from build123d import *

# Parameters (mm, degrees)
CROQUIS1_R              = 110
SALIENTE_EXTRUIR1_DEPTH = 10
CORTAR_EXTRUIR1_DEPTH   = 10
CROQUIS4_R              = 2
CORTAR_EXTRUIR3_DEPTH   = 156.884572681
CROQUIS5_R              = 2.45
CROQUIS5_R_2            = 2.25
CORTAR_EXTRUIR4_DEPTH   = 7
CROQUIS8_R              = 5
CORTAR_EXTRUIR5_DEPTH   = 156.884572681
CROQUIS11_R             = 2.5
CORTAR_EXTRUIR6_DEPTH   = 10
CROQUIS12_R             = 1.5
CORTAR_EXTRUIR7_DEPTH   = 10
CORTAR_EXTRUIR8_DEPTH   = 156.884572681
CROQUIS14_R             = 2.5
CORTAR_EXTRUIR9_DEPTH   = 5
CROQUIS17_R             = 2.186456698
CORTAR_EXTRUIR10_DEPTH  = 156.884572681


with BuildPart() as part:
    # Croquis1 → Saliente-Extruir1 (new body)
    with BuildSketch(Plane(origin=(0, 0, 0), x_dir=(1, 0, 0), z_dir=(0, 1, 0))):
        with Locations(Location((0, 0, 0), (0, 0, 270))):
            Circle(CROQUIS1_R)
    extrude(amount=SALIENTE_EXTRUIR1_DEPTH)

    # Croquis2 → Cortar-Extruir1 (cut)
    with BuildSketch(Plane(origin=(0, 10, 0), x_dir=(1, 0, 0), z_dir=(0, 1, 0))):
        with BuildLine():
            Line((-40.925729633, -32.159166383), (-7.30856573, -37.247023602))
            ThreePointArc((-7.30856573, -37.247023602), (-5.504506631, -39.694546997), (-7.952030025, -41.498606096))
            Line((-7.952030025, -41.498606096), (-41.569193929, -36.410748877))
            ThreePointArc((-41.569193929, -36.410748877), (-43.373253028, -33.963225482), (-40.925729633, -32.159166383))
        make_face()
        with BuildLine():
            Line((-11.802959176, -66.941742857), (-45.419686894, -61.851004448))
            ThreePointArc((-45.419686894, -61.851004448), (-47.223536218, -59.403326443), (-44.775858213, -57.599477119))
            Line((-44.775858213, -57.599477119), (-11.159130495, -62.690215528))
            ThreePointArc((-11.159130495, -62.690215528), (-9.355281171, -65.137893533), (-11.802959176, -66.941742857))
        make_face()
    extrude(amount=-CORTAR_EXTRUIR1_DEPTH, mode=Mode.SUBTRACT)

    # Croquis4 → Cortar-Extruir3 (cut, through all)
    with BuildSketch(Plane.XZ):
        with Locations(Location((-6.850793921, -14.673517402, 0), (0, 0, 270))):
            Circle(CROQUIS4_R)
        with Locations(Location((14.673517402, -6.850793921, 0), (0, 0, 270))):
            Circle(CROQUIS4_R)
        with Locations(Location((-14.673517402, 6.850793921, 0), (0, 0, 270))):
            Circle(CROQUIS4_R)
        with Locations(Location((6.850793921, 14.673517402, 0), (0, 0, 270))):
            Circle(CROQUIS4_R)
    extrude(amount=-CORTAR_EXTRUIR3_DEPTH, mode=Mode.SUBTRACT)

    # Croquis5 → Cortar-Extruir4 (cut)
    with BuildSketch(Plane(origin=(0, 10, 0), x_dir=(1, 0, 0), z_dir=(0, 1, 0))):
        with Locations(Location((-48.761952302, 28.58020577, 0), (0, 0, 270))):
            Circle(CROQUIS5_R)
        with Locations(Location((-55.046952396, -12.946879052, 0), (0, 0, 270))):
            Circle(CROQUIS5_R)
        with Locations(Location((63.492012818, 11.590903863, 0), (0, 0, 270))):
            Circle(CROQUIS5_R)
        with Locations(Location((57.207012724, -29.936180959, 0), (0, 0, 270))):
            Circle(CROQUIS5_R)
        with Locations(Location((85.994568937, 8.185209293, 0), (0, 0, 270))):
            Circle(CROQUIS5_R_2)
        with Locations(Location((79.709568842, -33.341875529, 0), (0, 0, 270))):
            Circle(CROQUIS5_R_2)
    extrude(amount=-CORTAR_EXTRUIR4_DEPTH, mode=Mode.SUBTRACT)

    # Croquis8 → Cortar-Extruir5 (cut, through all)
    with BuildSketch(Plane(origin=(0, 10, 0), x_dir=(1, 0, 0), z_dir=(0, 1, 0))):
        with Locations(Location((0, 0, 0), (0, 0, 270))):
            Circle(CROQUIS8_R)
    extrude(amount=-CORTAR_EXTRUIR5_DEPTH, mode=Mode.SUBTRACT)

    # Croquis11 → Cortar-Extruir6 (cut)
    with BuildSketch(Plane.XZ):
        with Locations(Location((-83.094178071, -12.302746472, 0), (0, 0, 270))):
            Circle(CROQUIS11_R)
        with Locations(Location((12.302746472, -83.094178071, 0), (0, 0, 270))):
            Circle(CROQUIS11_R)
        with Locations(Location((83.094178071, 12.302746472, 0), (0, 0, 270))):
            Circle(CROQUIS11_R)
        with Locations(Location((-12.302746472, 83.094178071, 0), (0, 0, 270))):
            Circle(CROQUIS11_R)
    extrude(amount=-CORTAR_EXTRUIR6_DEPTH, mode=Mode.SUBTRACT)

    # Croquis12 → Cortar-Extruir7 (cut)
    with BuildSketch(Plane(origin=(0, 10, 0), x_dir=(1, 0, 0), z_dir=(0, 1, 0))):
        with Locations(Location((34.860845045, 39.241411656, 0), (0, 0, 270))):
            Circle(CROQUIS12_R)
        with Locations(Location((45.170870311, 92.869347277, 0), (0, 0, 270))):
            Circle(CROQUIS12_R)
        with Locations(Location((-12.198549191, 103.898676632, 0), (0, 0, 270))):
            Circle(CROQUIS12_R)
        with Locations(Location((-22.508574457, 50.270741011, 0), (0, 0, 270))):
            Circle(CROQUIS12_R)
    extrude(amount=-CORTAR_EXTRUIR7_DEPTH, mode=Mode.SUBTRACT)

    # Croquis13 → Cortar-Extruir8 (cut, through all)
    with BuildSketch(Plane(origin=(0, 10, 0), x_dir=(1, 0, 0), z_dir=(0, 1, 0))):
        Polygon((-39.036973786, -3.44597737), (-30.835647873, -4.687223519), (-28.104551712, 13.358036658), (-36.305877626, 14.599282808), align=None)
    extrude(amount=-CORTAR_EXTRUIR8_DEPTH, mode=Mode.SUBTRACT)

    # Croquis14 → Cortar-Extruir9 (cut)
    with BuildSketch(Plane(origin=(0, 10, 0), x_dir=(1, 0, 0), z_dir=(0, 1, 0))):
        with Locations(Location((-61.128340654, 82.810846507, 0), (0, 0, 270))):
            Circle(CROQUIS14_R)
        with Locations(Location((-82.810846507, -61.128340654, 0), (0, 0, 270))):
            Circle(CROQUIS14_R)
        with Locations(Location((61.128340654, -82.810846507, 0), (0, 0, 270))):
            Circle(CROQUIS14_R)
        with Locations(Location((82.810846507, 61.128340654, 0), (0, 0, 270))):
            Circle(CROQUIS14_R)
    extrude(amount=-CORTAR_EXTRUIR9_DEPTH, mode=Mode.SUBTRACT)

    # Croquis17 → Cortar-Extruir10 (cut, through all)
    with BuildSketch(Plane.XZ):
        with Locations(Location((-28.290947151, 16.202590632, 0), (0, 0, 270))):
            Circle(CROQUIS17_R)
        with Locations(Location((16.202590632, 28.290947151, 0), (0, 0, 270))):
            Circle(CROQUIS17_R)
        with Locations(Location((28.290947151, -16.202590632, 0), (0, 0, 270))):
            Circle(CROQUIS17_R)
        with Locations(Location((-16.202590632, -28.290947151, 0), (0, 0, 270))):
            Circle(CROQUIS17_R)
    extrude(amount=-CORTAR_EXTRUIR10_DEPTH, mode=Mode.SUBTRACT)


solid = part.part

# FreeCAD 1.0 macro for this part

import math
import FreeCAD as App
import Part
import Sketcher

V = App.Vector
Q = App.Units.Quantity

doc = App.newDocument("Part")
body = doc.addObject("PartDesign::Body", "Body")

sketch1 = doc.addObject("Sketcher::SketchObject", "Sketch")
body.addObject(sketch1)
sketch1.AttachmentSupport = (doc.XZ_Plane, [""])
sketch1.MapMode = "FlatFace"
sketch1.addGeometry(Part.Circle(V(0, 0, 0), V(0, 0, 1), 110), False)
sketch1.addConstraint([
    Sketcher.Constraint("Coincident", 0, 3, -1, 1),
    Sketcher.Constraint("Diameter", 0, Q("220 mm")),
])
pad1 = doc.addObject("PartDesign::Pad", "Pad")
body.addObject(pad1)
pad1.Profile = sketch1
pad1.Length = 10
pad1.Reversed = True

sketch2 = doc.addObject("Sketcher::SketchObject", "Sketch001")
body.addObject(sketch2)
sketch2.AttachmentSupport = (doc.XZ_Plane, [""])
sketch2.MapMode = "FlatFace"
sketch2.AttachmentOffset = App.Placement(V(0, 0, -10), App.Rotation())
sketch2.addGeometry([
    Part.LineSegment(V(-7.3, 37.2, 0), V(-40.9, 32.2, 0)),
    Part.ArcOfCircle(Part.Circle(V(-41.2, 34.3, 0), V(0, 0, 1), 2.1), math.radians(99), math.radians(279)),
    Part.LineSegment(V(-41.6, 36.4, 0), V(-8, 41.5, 0)),
    Part.ArcOfCircle(Part.Circle(V(-7.6, 39.4, 0), V(0, 0, 1), 2.1), math.radians(-81), math.radians(99)),
    Part.LineSegment(V(-45.4, 61.9, 0), V(-11.8, 66.9, 0)),
    Part.ArcOfCircle(Part.Circle(V(-11.5, 64.8, 0), V(0, 0, 1), 2.1), math.radians(-81), math.radians(99)),
    Part.LineSegment(V(-11.2, 62.7, 0), V(-44.8, 57.6, 0)),
    Part.ArcOfCircle(Part.Circle(V(-45.1, 59.7, 0), V(0, 0, 1), 2.1), math.radians(99), math.radians(279)),
], False)
sketch2.addConstraint([
    Sketcher.Constraint("Tangent", 0, 2, 1, 2),
    Sketcher.Constraint("Tangent", 1, 1, 2, 1),
    Sketcher.Constraint("Tangent", 2, 2, 3, 2),
    Sketcher.Constraint("Tangent", 3, 1, 0, 1),
    Sketcher.Constraint("Tangent", 4, 2, 5, 2),
    Sketcher.Constraint("Tangent", 5, 1, 6, 1),
    Sketcher.Constraint("Tangent", 6, 2, 7, 2),
    Sketcher.Constraint("Tangent", 7, 1, 4, 1),
    Sketcher.Constraint("Equal", 1, 3),
    Sketcher.Constraint("Equal", 3, 5),
    Sketcher.Constraint("Equal", 5, 7),
    Sketcher.Constraint("Equal", 2, 4),
    Sketcher.Constraint("Radius", 1, Q("2.15 mm")),
    Sketcher.Constraint("Distance", 0, Q("34 mm")),
    Sketcher.Constraint("DistanceX", 0, 2, 2, 2, Q("32.9737 mm")),
    Sketcher.Constraint("DistanceX", 5, 1, 2, 2, Q("3.2071 mm")),
    Sketcher.Constraint("DistanceY", 3, 3, 5, 1, Q("23.317401 mm")),
    Sketcher.Constraint("DistanceX", 1, 3, -1, 1, Q("41.247462 mm")),
    Sketcher.Constraint("DistanceY", -1, 1, 5, 3, Q("64.815979 mm")),
    Sketcher.Constraint("DistanceY", -1, 1, 7, 3, Q("59.725241 mm")),
])
pocket1 = doc.addObject("PartDesign::Pocket", "Pocket")
body.addObject(pocket1)
pocket1.Profile = sketch2
pocket1.Length = 10
pocket1.Reversed = True

sketch3 = doc.addObject("Sketcher::SketchObject", "Sketch002")
body.addObject(sketch3)
sketch3.AttachmentSupport = (doc.XZ_Plane, [""])
sketch3.MapMode = "FlatFace"
sketch3.addGeometry([
    Part.Circle(V(-6.9, -14.7, 0), V(0, 0, 1), 2),
    Part.Circle(V(14.7, -6.9, 0), V(0, 0, 1), 2),
    Part.Circle(V(-14.7, 6.9, 0), V(0, 0, 1), 2),
    Part.Circle(V(6.9, 14.7, 0), V(0, 0, 1), 2),
], False)
sketch3.addConstraint([
    Sketcher.Constraint("Equal", 0, 1),
    Sketcher.Constraint("Equal", 1, 2),
    Sketcher.Constraint("Equal", 2, 3),
    Sketcher.Constraint("Symmetric", 1, 3, 2, 3, -1, 1),
    Sketcher.Constraint("Symmetric", 0, 3, 3, 3, -1, 1),
    Sketcher.Constraint("Diameter", 0, Q("4 mm")),
    Sketcher.Constraint("DistanceX", 0, 3, 1, 3, Q("21.524311 mm")),
    Sketcher.Constraint("DistanceY", 0, 3, 2, 3, Q("21.524311 mm")),
    Sketcher.Constraint("DistanceX", 0, 3, -1, 1, Q("6.850794 mm")),
    Sketcher.Constraint("DistanceY", 0, 3, -1, 1, Q("14.673517 mm")),
])
pocket2 = doc.addObject("PartDesign::Pocket", "Pocket001")
body.addObject(pocket2)
pocket2.Profile = sketch3
pocket2.Type = "ThroughAll"

sketch4 = doc.addObject("Sketcher::SketchObject", "Sketch003")
body.addObject(sketch4)
sketch4.AttachmentSupport = (doc.XZ_Plane, [""])
sketch4.MapMode = "FlatFace"
sketch4.AttachmentOffset = App.Placement(V(0, 0, -10), App.Rotation())
sketch4.addGeometry([
    Part.Circle(V(-48.8, -28.6, 0), V(0, 0, 1), 2.5),
    Part.Circle(V(-55, 12.9, 0), V(0, 0, 1), 2.5),
    Part.Circle(V(63.5, -11.6, 0), V(0, 0, 1), 2.5),
    Part.Circle(V(57.2, 29.9, 0), V(0, 0, 1), 2.5),
    Part.Circle(V(86, -8.2, 0), V(0, 0, 1), 2.2),
    Part.Circle(V(79.7, 33.3, 0), V(0, 0, 1), 2.2),
], False)
sketch4.addConstraint([
    Sketcher.Constraint("Equal", 0, 1),
    Sketcher.Constraint("Equal", 1, 2),
    Sketcher.Constraint("Equal", 2, 3),
    Sketcher.Constraint("Equal", 4, 5),
    Sketcher.Constraint("Diameter", 0, Q("4.9 mm")),
    Sketcher.Constraint("Diameter", 4, Q("4.5 mm")),
    Sketcher.Constraint("DistanceX", 1, 3, 0, 3, Q("6.285 mm")),
    Sketcher.Constraint("DistanceX", 3, 3, 2, 3, Q("6.285 mm")),
    Sketcher.Constraint("DistanceX", 5, 3, 4, 3, Q("6.285 mm")),
    Sketcher.Constraint("DistanceY", 0, 3, 2, 3, Q("16.989302 mm")),
    Sketcher.Constraint("DistanceY", 1, 3, 3, 3, Q("16.989302 mm")),
    Sketcher.Constraint("DistanceY", -1, 1, 1, 3, Q("12.946879 mm")),
    Sketcher.Constraint("DistanceX", -1, 1, 4, 3, Q("85.994569 mm")),
    Sketcher.Constraint("DistanceY", 4, 3, -1, 1, Q("8.185209 mm")),
    Sketcher.Constraint("DistanceX", 0, 3, 4, 3, Q("134.756521 mm")),
    Sketcher.Constraint("DistanceY", 2, 3, 5, 3, Q("44.932779 mm")),
    Sketcher.Constraint("DistanceY", 0, 3, -1, 1, Q("28.580206 mm")),
    Sketcher.Constraint("DistanceX", -1, 1, 2, 3, Q("63.492013 mm")),
])
pocket3 = doc.addObject("PartDesign::Pocket", "Pocket002")
body.addObject(pocket3)
pocket3.Profile = sketch4
pocket3.Length = 7
pocket3.Reversed = True

sketch5 = doc.addObject("Sketcher::SketchObject", "Sketch004")
body.addObject(sketch5)
sketch5.AttachmentSupport = (doc.XZ_Plane, [""])
sketch5.MapMode = "FlatFace"
sketch5.AttachmentOffset = App.Placement(V(0, 0, -10), App.Rotation())
sketch5.addGeometry(Part.Circle(V(0, 0, 0), V(0, 0, 1), 5), False)
sketch5.addConstraint([
    Sketcher.Constraint("Coincident", 0, 3, -1, 1),
    Sketcher.Constraint("Diameter", 0, Q("10 mm")),
])
pocket4 = doc.addObject("PartDesign::Pocket", "Pocket003")
body.addObject(pocket4)
pocket4.Profile = sketch5
pocket4.Type = "ThroughAll"
pocket4.Reversed = True

sketch6 = doc.addObject("Sketcher::SketchObject", "Sketch005")
body.addObject(sketch6)
sketch6.AttachmentSupport = (doc.XZ_Plane, [""])
sketch6.MapMode = "FlatFace"
sketch6.addGeometry([
    Part.Circle(V(-83.1, -12.3, 0), V(0, 0, 1), 2.5),
    Part.Circle(V(12.3, -83.1, 0), V(0, 0, 1), 2.5),
    Part.Circle(V(83.1, 12.3, 0), V(0, 0, 1), 2.5),
    Part.Circle(V(-12.3, 83.1, 0), V(0, 0, 1), 2.5),
], False)
sketch6.addConstraint([
    Sketcher.Constraint("Equal", 0, 1),
    Sketcher.Constraint("Equal", 1, 2),
    Sketcher.Constraint("Equal", 2, 3),
    Sketcher.Constraint("Symmetric", 0, 3, 2, 3, -1, 1),
    Sketcher.Constraint("Symmetric", 1, 3, 3, 3, -1, 1),
    Sketcher.Constraint("Diameter", 0, Q("5 mm")),
    Sketcher.Constraint("DistanceX", 0, 3, -1, 1, Q("83.094178 mm")),
    Sketcher.Constraint("DistanceY", 1, 3, -1, 1, Q("83.094178 mm")),
    Sketcher.Constraint("DistanceY", 1, 3, 0, 3, Q("70.791432 mm")),
    Sketcher.Constraint("DistanceX", 1, 3, 2, 3, Q("70.791432 mm")),
])
pocket5 = doc.addObject("PartDesign::Pocket", "Pocket004")
body.addObject(pocket5)
pocket5.Profile = sketch6
pocket5.Length = 10

sketch7 = doc.addObject("Sketcher::SketchObject", "Sketch006")
body.addObject(sketch7)
sketch7.AttachmentSupport = (doc.XZ_Plane, [""])
sketch7.MapMode = "FlatFace"
sketch7.AttachmentOffset = App.Placement(V(0, 0, -10), App.Rotation())
sketch7.addGeometry([
    Part.Circle(V(34.9, -39.2, 0), V(0, 0, 1), 1.5),
    Part.Circle(V(45.2, -92.9, 0), V(0, 0, 1), 1.5),
    Part.Circle(V(-12.2, -103.9, 0), V(0, 0, 1), 1.5),
    Part.Circle(V(-22.5, -50.3, 0), V(0, 0, 1), 1.5),
], False)
sketch7.addConstraint([
    Sketcher.Constraint("Equal", 0, 1),
    Sketcher.Constraint("Equal", 1, 2),
    Sketcher.Constraint("Equal", 2, 3),
    Sketcher.Constraint("Diameter", 0, Q("3 mm")),
    Sketcher.Constraint("DistanceY", 0, 3, -1, 1, Q("39.241412 mm")),
    Sketcher.Constraint("DistanceX", -1, 1, 1, 3, Q("45.17087 mm")),
    Sketcher.Constraint("DistanceX", 2, 3, -1, 1, Q("12.198549 mm")),
    Sketcher.Constraint("DistanceY", 3, 3, -1, 1, Q("50.270741 mm")),
    Sketcher.Constraint("DistanceY", 2, 3, 1, 3, Q("11.029329 mm")),
    Sketcher.Constraint("DistanceX", 3, 3, 0, 3, Q("57.36942 mm")),
    Sketcher.Constraint("DistanceX", -1, 1, 0, 3, Q("34.860845 mm")),
    Sketcher.Constraint("DistanceY", 1, 3, -1, 1, Q("92.869347 mm")),
])
pocket6 = doc.addObject("PartDesign::Pocket", "Pocket005")
body.addObject(pocket6)
pocket6.Profile = sketch7
pocket6.Length = 10
pocket6.Reversed = True

sketch8 = doc.addObject("Sketcher::SketchObject", "Sketch007")
body.addObject(sketch8)
sketch8.AttachmentSupport = (doc.XZ_Plane, [""])
sketch8.MapMode = "FlatFace"
sketch8.AttachmentOffset = App.Placement(V(0, 0, -10), App.Rotation())
sketch8.addGeometry([
    Part.LineSegment(V(-39, 3, 0), V(-31, 5, 0)),
    Part.LineSegment(V(-31, 5, 0), V(-28, -13, 0)),
    Part.LineSegment(V(-28, -13, 0), V(-36, -15, 0)),
    Part.LineSegment(V(-36, -15, 0), V(-39, 3, 0)),
], False)
sketch8.addConstraint([
    Sketcher.Constraint("Coincident", 0, 2, 1, 1),
    Sketcher.Constraint("Coincident", 1, 2, 2, 1),
    Sketcher.Constraint("Coincident", 2, 2, 3, 1),
    Sketcher.Constraint("Coincident", 3, 2, 0, 1),
    Sketcher.Constraint("Perpendicular", 0, 1),
    Sketcher.Constraint("Perpendicular", 1, 2),
    Sketcher.Constraint("Perpendicular", 2, 3),
    Sketcher.Constraint("Distance", 1, Q("18.250762 mm")),
    Sketcher.Constraint("DistanceX", 1, 2, -1, 1, Q("28.104552 mm")),
    Sketcher.Constraint("DistanceY", 1, 2, 0, 2, Q("18.04526 mm")),
    Sketcher.Constraint("DistanceX", 2, 2, 0, 2, Q("5.47023 mm")),
    Sketcher.Constraint("DistanceY", -1, 1, 0, 2, Q("4.687224 mm")),
])
pocket7 = doc.addObject("PartDesign::Pocket", "Pocket006")
body.addObject(pocket7)
pocket7.Profile = sketch8
pocket7.Type = "ThroughAll"
pocket7.Reversed = True

sketch9 = doc.addObject("Sketcher::SketchObject", "Sketch008")
body.addObject(sketch9)
sketch9.AttachmentSupport = (doc.XZ_Plane, [""])
sketch9.MapMode = "FlatFace"
sketch9.AttachmentOffset = App.Placement(V(0, 0, -10), App.Rotation())
sketch9.addGeometry([
    Part.Circle(V(-61.1, -82.8, 0), V(0, 0, 1), 2.5),
    Part.Circle(V(-82.8, 61.1, 0), V(0, 0, 1), 2.5),
    Part.Circle(V(61.1, 82.8, 0), V(0, 0, 1), 2.5),
    Part.Circle(V(82.8, -61.1, 0), V(0, 0, 1), 2.5),
], False)
sketch9.addConstraint([
    Sketcher.Constraint("Equal", 0, 1),
    Sketcher.Constraint("Equal", 1, 2),
    Sketcher.Constraint("Equal", 2, 3),
    Sketcher.Constraint("Symmetric", 0, 3, 2, 3, -1, 1),
    Sketcher.Constraint("Symmetric", 1, 3, 3, 3, -1, 1),
    Sketcher.Constraint("Diameter", 0, Q("5 mm")),
    Sketcher.Constraint("DistanceX", 0, 3, -1, 1, Q("61.128341 mm")),
    Sketcher.Constraint("DistanceY", -1, 1, 1, 3, Q("61.128341 mm")),
    Sketcher.Constraint("DistanceY", 0, 3, -1, 1, Q("82.810847 mm")),
    Sketcher.Constraint("DistanceX", 1, 3, -1, 1, Q("82.810847 mm")),
])
pocket8 = doc.addObject("PartDesign::Pocket", "Pocket007")
body.addObject(pocket8)
pocket8.Profile = sketch9
pocket8.Length = 5
pocket8.Reversed = True

sketch10 = doc.addObject("Sketcher::SketchObject", "Sketch009")
body.addObject(sketch10)
sketch10.AttachmentSupport = (doc.XZ_Plane, [""])
sketch10.MapMode = "FlatFace"
sketch10.addGeometry([
    Part.Circle(V(-28.3, 16.2, 0), V(0, 0, 1), 2.2),
    Part.Circle(V(16.2, 28.3, 0), V(0, 0, 1), 2.2),
    Part.Circle(V(28.3, -16.2, 0), V(0, 0, 1), 2.2),
    Part.Circle(V(-16.2, -28.3, 0), V(0, 0, 1), 2.2),
], False)
sketch10.addConstraint([
    Sketcher.Constraint("Equal", 0, 1),
    Sketcher.Constraint("Equal", 1, 2),
    Sketcher.Constraint("Equal", 2, 3),
    Sketcher.Constraint("Symmetric", 0, 3, 2, 3, -1, 1),
    Sketcher.Constraint("Symmetric", 1, 3, 3, 3, -1, 1),
    Sketcher.Constraint("Diameter", 0, Q("4.372913 mm")),
    Sketcher.Constraint("DistanceY", -1, 1, 0, 3, Q("16.202591 mm")),
    Sketcher.Constraint("DistanceX", -1, 1, 1, 3, Q("16.202591 mm")),
    Sketcher.Constraint("DistanceX", 0, 3, -1, 1, Q("28.290947 mm")),
    Sketcher.Constraint("DistanceY", -1, 1, 1, 3, Q("28.290947 mm")),
])
pocket9 = doc.addObject("PartDesign::Pocket", "Pocket008")
body.addObject(pocket9)
pocket9.Profile = sketch10
pocket9.Type = "ThroughAll"

doc.recompute()
